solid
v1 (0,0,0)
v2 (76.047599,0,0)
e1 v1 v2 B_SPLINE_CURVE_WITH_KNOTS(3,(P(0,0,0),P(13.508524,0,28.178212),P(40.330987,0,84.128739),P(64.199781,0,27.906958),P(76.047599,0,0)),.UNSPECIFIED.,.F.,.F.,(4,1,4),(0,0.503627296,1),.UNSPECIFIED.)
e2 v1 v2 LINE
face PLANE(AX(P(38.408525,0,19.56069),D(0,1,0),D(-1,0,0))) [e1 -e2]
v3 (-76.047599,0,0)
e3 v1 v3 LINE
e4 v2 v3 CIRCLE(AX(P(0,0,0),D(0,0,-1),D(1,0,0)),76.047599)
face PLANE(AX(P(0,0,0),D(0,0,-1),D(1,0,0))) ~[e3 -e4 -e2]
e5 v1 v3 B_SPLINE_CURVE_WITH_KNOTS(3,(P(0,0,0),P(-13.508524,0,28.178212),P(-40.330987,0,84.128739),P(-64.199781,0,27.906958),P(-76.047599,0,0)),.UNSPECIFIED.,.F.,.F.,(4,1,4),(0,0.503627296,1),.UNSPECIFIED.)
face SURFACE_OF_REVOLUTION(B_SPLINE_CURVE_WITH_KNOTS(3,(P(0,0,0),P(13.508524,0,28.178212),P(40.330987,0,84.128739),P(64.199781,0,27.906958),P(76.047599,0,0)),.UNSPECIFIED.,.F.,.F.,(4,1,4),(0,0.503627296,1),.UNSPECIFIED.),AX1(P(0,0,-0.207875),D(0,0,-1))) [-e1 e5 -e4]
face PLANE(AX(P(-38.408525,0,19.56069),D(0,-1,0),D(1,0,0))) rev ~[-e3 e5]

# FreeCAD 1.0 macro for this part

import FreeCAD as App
import Part
import Sketcher

V = App.Vector

doc = App.newDocument("Part")
body = doc.addObject("PartDesign::Body", "Body")

sketch1 = body.newObject("Sketcher::SketchObject", "Sketch")
sketch1.AttachmentSupport = (doc.getObject("XZ_Plane"), [""])
sketch1.MapMode = "FlatFace"
sketch1.addGeometry([
    Part.BSplineCurve([V(0, 0, 0), V(13.508524, 28.178212, 0), V(40.330987, 84.128739, 0), V(64.199781, 27.906958, 0), V(76.047599, 0, 0)], [4, 1, 4], [0, 0.503627296, 1], False, 3, [1, 1, 1, 1, 1], False),
    Part.LineSegment(V(0, 0, 0), V(76.047599, 0, 0)),
], False)
sketch1.addConstraint([
    Sketcher.Constraint("Block", 0),
    Sketcher.Constraint("Coincident", 0, 1, 1, 1),
    Sketcher.Constraint("Coincident", 1, 2, 0, 2),
])
revolution = body.newObject("PartDesign::Revolution", "Revolution")
revolution.Profile = sketch1
revolution.ReferenceAxis = (sketch1, ["V_Axis"])
revolution.Angle = 180
revolution.Reversed = True

doc.recompute()
